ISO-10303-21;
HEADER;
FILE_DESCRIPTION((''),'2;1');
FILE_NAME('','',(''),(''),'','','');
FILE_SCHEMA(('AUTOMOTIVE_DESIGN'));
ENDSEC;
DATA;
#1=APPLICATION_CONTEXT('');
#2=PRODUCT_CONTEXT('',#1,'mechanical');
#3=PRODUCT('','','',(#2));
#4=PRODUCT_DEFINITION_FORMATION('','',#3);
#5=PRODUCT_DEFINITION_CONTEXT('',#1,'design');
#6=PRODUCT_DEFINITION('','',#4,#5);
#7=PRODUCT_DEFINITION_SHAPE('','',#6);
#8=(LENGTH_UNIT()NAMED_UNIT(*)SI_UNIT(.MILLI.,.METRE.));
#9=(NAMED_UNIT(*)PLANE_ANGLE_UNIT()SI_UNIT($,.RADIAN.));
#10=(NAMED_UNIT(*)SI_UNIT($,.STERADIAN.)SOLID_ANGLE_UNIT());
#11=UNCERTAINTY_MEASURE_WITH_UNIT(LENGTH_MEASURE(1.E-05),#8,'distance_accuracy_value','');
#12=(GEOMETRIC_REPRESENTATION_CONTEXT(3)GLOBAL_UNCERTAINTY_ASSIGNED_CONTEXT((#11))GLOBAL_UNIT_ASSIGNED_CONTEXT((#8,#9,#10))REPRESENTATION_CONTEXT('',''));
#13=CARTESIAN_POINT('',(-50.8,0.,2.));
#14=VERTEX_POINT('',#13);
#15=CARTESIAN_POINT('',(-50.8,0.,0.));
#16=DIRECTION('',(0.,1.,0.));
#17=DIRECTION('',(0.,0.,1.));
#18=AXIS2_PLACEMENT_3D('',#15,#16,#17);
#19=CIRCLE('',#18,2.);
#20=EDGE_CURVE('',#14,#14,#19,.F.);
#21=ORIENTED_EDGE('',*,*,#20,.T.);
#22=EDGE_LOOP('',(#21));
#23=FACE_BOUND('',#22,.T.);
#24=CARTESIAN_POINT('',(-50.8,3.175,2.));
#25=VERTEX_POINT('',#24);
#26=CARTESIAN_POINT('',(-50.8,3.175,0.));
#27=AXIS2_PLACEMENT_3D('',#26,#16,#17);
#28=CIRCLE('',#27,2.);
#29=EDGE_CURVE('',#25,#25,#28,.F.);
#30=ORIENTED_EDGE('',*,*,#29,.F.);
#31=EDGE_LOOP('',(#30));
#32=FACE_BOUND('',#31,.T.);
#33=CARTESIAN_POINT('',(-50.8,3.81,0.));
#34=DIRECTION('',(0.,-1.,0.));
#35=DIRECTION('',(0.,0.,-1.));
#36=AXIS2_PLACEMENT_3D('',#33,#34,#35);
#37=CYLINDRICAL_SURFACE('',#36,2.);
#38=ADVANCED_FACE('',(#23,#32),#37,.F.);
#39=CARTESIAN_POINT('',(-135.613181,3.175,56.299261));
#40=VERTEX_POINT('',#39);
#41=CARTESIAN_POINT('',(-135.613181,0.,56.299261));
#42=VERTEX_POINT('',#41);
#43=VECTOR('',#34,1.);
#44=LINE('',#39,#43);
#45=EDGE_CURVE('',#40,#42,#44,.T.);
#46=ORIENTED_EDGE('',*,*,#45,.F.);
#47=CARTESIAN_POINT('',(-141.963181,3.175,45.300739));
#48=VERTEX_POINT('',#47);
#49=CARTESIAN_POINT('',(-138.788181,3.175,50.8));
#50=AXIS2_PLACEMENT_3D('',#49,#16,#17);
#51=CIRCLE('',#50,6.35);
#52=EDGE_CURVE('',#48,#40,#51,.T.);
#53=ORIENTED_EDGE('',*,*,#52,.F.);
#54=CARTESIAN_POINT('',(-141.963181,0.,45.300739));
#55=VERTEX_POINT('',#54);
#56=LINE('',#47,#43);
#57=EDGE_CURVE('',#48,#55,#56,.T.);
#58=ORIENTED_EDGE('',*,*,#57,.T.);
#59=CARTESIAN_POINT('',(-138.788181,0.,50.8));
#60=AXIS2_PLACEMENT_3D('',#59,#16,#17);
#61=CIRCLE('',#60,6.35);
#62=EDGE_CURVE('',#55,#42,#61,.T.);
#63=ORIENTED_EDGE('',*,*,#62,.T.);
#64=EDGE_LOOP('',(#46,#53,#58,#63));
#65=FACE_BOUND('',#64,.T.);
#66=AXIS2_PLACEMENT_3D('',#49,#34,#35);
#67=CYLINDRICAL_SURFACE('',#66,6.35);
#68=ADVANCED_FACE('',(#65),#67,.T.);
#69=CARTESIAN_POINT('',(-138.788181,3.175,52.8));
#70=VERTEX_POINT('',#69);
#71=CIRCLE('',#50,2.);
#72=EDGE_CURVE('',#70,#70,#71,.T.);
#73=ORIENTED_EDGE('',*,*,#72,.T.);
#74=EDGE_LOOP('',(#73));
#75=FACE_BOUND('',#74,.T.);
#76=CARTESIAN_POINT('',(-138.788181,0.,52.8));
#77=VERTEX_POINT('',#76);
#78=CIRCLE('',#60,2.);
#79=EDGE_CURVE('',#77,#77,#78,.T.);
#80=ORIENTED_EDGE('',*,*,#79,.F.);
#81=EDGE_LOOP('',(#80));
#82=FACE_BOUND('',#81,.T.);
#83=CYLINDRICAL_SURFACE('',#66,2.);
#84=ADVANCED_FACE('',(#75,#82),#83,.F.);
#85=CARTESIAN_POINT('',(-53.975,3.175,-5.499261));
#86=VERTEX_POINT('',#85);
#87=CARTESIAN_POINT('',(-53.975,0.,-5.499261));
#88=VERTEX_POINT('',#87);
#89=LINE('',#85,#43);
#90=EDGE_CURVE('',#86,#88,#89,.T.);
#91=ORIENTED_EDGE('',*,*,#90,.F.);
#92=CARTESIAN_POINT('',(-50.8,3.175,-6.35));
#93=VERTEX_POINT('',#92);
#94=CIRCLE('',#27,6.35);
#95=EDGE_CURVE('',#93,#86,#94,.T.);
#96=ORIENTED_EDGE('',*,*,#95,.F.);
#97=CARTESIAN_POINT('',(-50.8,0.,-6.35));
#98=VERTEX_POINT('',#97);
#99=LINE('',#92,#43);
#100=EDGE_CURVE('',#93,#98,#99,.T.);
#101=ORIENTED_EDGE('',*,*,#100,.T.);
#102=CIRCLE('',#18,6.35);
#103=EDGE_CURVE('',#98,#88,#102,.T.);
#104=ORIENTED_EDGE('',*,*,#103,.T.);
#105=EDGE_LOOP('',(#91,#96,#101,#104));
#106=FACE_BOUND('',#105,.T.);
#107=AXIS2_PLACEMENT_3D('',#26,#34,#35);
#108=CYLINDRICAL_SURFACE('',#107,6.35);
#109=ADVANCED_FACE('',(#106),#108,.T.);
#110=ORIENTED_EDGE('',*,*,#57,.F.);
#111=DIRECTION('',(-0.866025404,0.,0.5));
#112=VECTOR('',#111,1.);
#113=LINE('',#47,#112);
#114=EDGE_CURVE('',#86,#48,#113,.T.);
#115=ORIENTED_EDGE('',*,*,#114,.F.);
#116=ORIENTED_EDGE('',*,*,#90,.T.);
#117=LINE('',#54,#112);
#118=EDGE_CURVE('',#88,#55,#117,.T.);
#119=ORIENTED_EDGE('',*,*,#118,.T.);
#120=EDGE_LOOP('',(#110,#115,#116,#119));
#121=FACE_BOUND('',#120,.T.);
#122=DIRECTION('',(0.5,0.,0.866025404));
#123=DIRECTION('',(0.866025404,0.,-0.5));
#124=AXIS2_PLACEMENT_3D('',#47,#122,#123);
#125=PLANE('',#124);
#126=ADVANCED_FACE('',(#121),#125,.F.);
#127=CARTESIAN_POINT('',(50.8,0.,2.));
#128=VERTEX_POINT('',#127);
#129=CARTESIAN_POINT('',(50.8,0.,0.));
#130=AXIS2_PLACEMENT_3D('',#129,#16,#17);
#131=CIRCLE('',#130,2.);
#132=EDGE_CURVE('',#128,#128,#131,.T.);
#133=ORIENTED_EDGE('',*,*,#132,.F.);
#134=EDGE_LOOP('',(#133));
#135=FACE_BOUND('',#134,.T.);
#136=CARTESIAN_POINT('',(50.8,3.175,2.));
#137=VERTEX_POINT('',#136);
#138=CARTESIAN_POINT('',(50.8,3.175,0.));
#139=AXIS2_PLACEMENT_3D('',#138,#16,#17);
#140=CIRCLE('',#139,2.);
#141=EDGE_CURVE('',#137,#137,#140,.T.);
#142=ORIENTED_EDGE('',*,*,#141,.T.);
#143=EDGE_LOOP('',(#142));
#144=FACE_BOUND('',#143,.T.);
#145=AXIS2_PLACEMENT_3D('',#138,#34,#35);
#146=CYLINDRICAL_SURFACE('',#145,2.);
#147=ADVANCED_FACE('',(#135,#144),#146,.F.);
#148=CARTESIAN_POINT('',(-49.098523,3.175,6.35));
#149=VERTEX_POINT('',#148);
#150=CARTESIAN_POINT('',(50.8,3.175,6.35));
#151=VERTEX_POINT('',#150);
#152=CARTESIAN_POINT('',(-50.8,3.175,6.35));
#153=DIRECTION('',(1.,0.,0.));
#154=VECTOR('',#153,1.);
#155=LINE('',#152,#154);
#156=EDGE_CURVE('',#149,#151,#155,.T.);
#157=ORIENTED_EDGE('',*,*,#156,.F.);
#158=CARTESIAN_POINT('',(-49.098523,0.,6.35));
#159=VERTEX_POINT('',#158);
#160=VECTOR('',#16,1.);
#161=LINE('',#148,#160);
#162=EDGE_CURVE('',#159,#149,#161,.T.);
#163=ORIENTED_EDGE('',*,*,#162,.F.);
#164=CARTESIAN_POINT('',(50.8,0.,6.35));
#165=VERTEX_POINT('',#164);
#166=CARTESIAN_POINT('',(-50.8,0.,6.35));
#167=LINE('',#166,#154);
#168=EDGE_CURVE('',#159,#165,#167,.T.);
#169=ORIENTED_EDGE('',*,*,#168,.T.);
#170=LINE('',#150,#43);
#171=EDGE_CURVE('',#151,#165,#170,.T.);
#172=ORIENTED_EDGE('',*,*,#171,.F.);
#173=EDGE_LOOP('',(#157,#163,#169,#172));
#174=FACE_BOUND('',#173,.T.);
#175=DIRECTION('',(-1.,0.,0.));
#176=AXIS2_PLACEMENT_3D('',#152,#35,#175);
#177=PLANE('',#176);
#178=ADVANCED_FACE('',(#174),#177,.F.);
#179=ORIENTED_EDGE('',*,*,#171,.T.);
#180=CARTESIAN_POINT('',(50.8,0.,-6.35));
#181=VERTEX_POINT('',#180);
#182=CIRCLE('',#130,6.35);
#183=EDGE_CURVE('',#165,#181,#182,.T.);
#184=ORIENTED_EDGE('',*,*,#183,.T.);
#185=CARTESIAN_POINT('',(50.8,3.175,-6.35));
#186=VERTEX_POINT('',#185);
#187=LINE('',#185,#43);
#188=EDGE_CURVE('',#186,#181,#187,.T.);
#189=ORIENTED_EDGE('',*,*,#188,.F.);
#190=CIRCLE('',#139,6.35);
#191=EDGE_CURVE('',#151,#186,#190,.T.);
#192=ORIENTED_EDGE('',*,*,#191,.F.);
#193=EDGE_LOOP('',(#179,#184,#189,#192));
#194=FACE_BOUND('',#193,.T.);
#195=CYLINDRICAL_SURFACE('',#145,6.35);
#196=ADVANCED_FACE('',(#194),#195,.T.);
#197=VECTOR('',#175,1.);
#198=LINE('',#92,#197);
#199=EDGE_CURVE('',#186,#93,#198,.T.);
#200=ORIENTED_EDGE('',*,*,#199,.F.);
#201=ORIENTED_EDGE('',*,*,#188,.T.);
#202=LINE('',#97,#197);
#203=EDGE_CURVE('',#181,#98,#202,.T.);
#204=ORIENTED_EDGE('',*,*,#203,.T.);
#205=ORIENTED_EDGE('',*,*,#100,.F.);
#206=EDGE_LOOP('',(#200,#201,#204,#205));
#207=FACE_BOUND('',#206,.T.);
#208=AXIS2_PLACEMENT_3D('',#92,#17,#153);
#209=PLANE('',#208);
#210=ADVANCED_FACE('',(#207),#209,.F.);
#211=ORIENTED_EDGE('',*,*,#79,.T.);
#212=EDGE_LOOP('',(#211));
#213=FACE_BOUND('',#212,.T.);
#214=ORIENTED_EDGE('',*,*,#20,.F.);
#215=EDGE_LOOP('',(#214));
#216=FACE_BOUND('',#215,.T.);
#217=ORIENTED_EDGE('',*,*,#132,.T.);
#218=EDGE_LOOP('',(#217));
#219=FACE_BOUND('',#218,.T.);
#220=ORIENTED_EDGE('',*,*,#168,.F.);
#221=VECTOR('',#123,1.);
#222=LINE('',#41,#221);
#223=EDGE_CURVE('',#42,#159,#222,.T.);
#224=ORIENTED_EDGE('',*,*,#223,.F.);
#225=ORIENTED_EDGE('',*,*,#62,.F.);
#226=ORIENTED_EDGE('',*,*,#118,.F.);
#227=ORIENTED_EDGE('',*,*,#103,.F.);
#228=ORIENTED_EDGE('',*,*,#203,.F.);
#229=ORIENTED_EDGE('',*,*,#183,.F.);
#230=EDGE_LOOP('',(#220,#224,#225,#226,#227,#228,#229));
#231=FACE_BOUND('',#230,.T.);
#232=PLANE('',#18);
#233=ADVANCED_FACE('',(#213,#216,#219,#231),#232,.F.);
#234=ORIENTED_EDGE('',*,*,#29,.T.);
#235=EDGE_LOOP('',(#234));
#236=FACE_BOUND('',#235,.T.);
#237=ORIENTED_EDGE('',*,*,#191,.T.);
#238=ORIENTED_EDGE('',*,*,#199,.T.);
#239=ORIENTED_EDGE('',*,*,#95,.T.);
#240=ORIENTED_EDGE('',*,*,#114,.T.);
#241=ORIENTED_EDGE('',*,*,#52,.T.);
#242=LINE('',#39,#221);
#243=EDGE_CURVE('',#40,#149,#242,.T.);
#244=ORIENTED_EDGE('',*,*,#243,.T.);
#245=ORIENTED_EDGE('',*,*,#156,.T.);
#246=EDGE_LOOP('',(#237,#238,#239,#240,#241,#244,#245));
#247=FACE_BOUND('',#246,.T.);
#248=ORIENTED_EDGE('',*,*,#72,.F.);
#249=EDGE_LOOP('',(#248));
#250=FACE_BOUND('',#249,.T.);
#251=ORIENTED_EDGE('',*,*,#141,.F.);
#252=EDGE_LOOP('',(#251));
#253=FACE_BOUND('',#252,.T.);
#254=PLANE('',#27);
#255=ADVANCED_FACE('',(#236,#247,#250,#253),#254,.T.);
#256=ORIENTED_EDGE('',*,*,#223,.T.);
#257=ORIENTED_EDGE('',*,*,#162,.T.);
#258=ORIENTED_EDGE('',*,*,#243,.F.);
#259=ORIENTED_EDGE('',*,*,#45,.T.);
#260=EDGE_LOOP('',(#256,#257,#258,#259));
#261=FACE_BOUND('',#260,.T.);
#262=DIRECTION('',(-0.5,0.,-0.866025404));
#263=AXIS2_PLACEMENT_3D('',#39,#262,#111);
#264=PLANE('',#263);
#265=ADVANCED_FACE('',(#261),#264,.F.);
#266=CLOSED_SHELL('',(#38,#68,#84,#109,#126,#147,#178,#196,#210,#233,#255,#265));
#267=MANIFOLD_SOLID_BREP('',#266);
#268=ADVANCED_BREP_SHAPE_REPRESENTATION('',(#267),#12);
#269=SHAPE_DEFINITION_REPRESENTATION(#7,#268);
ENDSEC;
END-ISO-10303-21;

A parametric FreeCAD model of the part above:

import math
import FreeCAD as App
import Part
import Sketcher
from FreeCAD import Vector
Q = App.Units.Quantity

doc = App.newDocument("Part")
body = doc.addObject("PartDesign::Body", "Body")

# Sketch on XZ plane
sketch1 = doc.addObject("Sketcher::SketchObject", "Sketch")
body.addObject(sketch1)
sketch1.AttachmentSupport = (doc.XZ_Plane, [""])
sketch1.MapMode = "FlatFace"
sketch1.addGeometry(Part.LineSegment(Vector(50.8, -6.3, 0), Vector(-50.8, -6.3, 0)), False)
sketch1.addGeometry(Part.ArcOfCircle(Part.Circle(Vector(-50.8, 0, 0), Vector(0, 0, 1), 6.3), math.radians(90), math.radians(270)), False)
sketch1.addGeometry(Part.LineSegment(Vector(-50.8, 6.3, 0), Vector(50.8, 6.3, 0)), False)
sketch1.addGeometry(Part.ArcOfCircle(Part.Circle(Vector(50.8, 0, 0), Vector(0, 0, 1), 6.3), math.radians(-90), math.radians(90)), False)
sketch1.addGeometry(Part.Circle(Vector(50.8, 0, 0), Vector(0, 0, 1), 2), False)
sketch1.addGeometry(Part.Circle(Vector(-50.8, 0, 0), Vector(0, 0, 1), 2), False)
sketch1.addConstraint(Sketcher.Constraint("Tangent", 0, 2, 1, 2))
sketch1.addConstraint(Sketcher.Constraint("Tangent", 1, 1, 2, 1))
sketch1.addConstraint(Sketcher.Constraint("Tangent", 2, 2, 3, 2))
sketch1.addConstraint(Sketcher.Constraint("Tangent", 3, 1, 0, 1))
sketch1.addConstraint(Sketcher.Constraint("Horizontal", 0))
sketch1.addConstraint(Sketcher.Constraint("Horizontal", 2))
sketch1.addConstraint(Sketcher.Constraint("Coincident", 4, 3, 3, 3))
sketch1.addConstraint(Sketcher.Constraint("Coincident", 5, 3, 1, 3))
sketch1.addConstraint(Sketcher.Constraint("Equal", 4, 5))
sketch1.addConstraint(Sketcher.Constraint("Symmetric", 1, 3, 3, 3, -1, 1))
sketch1.addConstraint(Sketcher.Constraint("DistanceX", 0, 2, 0, 1, Q("4 in")))
sketch1.addConstraint(Sketcher.Constraint("Radius", 1, Q("0.25 in")))
sketch1.addConstraint(Sketcher.Constraint("Diameter", 4, 4.0))
pad1 = doc.addObject("PartDesign::Pad", "Pad")
body.addObject(pad1)
pad1.Profile = sketch1
pad1.Length = Q("0.125 in")
pad1.Reversed = True

# Sketch on XZ plane
sketch2 = doc.addObject("Sketcher::SketchObject", "Sketch001")
body.addObject(sketch2)
sketch2.AttachmentSupport = (doc.XZ_Plane, [""])
sketch2.MapMode = "FlatFace"
sketch2.addGeometry(Part.LineSegment(Vector(-54, -5.5, 0), Vector(-142, 45.3, 0)), False)
sketch2.addGeometry(Part.ArcOfCircle(Part.Circle(Vector(-138.8, 50.8, 0), Vector(0, 0, 1), 6.3), math.radians(60), math.radians(240)), False)
sketch2.addGeometry(Part.LineSegment(Vector(-135.6, 56.3, 0), Vector(-47.6, 5.5, 0)), False)
sketch2.addGeometry(Part.ArcOfCircle(Part.Circle(Vector(-50.8, 0, 0), Vector(0, 0, 1), 6.3), math.radians(-120), math.radians(60)), False)
sketch2.addGeometry(Part.Circle(Vector(-138.8, 50.8, 0), Vector(0, 0, 1), 2), False)
sketch2.addConstraint(Sketcher.Constraint("Tangent", 0, 2, 1, 2))
sketch2.addConstraint(Sketcher.Constraint("Tangent", 1, 1, 2, 1))
sketch2.addConstraint(Sketcher.Constraint("Tangent", 2, 2, 3, 2))
sketch2.addConstraint(Sketcher.Constraint("Tangent", 3, 1, 0, 1))
sketch2.addConstraint(Sketcher.Constraint("Coincident", 4, 3, 1, 3))
sketch2.addConstraint(Sketcher.Constraint("Equal", 1, 3))
sketch2.addConstraint(Sketcher.Constraint("PointOnObject", 3, 3, -1))
sketch2.addConstraint(Sketcher.Constraint("Radius", 1, Q("0.25 in")))
sketch2.addConstraint(Sketcher.Constraint("Distance", 0, Q("4 in")))
sketch2.addConstraint(Sketcher.Constraint("DistanceY", -1, 1, 1, 3, Q("2 in")))
sketch2.addConstraint(Sketcher.Constraint("DistanceX", 3, 3, -1, 1, Q("2 in")))
sketch2.addConstraint(Sketcher.Constraint("Diameter", 4, 4.0))
pad2 = doc.addObject("PartDesign::Pad", "Pad001")
body.addObject(pad2)
pad2.Profile = sketch2
pad2.Length = Q("0.125 in")
pad2.Reversed = True

# Sketch on XZ plane
sketch3 = doc.addObject("Sketcher::SketchObject", "Sketch002")
body.addObject(sketch3)
sketch3.AttachmentSupport = (doc.XZ_Plane, [""])
sketch3.MapMode = "FlatFace"
sketch3.addGeometry(Part.Circle(Vector(-50.8, 0, 0), Vector(0, 0, 1), 2), False)
sketch3.addConstraint(Sketcher.Constraint("PointOnObject", 0, 3, -1))
sketch3.addConstraint(Sketcher.Constraint("DistanceX", 0, 3, -1, 1, Q("2 in")))
sketch3.addConstraint(Sketcher.Constraint("Diameter", 0, 4.0))
pocket1 = doc.addObject("PartDesign::Pocket", "Pocket")
body.addObject(pocket1)
pocket1.Profile = sketch3
pocket1.Type = "ThroughAll"
pocket1.Midplane = True

doc.recompute()
